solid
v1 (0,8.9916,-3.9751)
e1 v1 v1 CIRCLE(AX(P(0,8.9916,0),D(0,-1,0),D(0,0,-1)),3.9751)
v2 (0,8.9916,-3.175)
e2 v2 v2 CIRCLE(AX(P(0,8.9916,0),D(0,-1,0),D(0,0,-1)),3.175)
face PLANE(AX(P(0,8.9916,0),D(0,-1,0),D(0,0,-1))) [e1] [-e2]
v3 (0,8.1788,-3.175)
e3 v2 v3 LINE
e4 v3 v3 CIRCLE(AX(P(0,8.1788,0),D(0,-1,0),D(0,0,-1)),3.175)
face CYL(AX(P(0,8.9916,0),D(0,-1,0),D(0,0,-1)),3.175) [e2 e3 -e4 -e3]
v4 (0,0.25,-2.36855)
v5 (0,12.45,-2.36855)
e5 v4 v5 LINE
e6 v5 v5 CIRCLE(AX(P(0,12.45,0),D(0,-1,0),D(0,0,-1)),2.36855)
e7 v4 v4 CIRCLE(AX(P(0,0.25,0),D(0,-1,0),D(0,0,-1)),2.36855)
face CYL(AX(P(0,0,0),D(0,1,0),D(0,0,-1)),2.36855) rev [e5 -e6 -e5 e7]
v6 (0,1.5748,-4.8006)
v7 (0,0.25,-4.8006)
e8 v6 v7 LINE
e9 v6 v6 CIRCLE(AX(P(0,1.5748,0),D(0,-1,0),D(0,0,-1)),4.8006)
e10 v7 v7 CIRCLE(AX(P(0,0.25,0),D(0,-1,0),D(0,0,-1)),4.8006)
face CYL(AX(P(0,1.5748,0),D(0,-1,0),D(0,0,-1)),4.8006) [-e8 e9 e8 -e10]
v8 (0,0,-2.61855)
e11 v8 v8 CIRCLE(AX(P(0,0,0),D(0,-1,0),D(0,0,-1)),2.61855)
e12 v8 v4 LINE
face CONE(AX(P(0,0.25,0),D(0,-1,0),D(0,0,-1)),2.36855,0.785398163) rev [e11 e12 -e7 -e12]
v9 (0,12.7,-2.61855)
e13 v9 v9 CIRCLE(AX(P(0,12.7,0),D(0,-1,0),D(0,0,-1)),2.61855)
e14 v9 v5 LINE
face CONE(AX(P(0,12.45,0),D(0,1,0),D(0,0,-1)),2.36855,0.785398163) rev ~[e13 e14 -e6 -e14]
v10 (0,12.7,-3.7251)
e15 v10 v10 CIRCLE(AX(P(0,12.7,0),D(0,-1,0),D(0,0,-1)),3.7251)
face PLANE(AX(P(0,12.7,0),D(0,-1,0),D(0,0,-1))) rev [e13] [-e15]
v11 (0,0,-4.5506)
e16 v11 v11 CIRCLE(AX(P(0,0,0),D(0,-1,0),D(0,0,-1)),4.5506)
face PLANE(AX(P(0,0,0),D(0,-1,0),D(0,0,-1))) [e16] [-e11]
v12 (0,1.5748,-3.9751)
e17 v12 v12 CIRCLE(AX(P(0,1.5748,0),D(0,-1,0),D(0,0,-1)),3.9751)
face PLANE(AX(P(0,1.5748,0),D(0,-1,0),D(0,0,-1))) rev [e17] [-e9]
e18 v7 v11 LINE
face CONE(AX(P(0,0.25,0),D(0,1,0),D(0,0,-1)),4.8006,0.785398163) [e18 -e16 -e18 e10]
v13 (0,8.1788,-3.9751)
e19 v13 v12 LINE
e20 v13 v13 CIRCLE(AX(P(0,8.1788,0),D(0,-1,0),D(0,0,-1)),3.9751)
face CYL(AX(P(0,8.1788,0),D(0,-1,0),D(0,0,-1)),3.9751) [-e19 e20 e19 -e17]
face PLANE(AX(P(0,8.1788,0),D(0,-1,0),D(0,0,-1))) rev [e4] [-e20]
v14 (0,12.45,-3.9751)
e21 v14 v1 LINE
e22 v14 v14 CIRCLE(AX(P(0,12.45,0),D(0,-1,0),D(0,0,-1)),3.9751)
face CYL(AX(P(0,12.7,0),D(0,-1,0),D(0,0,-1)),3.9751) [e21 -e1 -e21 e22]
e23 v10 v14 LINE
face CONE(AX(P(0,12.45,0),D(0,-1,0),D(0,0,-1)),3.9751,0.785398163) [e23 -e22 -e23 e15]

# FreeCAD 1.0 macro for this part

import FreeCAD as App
import Part
import Sketcher
from FreeCAD import Vector
Q = App.Units.Quantity


def edges_at(feature, points):
    """Names of the edges that pass closest to the given points."""
    edges = feature.Shape.Edges
    near = lambda p: min(range(len(edges)), key=lambda i: edges[i].distToShape(Part.Vertex(*p))[0])
    return sorted({f"Edge{near(p) + 1}" for p in points})


def add_polygon(sketch, points):
    """Adds a closed chain of lines whose ends are joined by coincident constraints."""
    first, n = sketch.GeometryCount, len(points)
    for a, b in zip(points, points[1:] + points[:1]):
        sketch.addGeometry(Part.LineSegment(App.Vector(*a, 0), App.Vector(*b, 0)), False)
    for i in range(n):
        sketch.addConstraint(Sketcher.Constraint("Coincident", first + i, 2, first + (i + 1) % n, 1))

doc = App.newDocument("Part")
params = doc.addObject("Spreadsheet::Sheet", "Params")
for row, (alias, value) in enumerate([
    ("sketch1_width", "0.5 in"),
    ("sketch1_width2", "0.26 in"),
    ("sketch1_width3", "0.062 in"),
    ("sketch1_width4", "0.032 in"),
    ("revolution_angle", "360 deg"),
    ("chamfer_size", "0.25 mm"),
], start=1):
    params.set(f"A{row}", alias)
    params.set(f"B{row}", "=" + value)
    params.setAlias(f"B{row}", alias)

body = doc.addObject("PartDesign::Body", "Body")

# Sketch on YZ plane
sketch1 = doc.addObject("Sketcher::SketchObject", "Sketch")
body.addObject(sketch1)
sketch1.AttachmentSupport = (doc.YZ_Plane, [""])
sketch1.MapMode = "FlatFace"
add_polygon(sketch1, [(12.7, -3.9751), (12.7, -2.36855), (0, -2.36855), (0, -4.8006), (1.5748, -4.8006), (1.5748, -3.9751), (8.1788, -3.9751), (8.1788, -3.175), (8.9916, -3.175), (8.9916, -3.9751)])  # lines 0-9
sketch1.addConstraint(Sketcher.Constraint("Vertical", 0))
sketch1.addConstraint(Sketcher.Constraint("Horizontal", 1))
sketch1.addConstraint(Sketcher.Constraint("Vertical", 2))
sketch1.addConstraint(Sketcher.Constraint("Horizontal", 3))
sketch1.addConstraint(Sketcher.Constraint("Vertical", 4))
sketch1.addConstraint(Sketcher.Constraint("Horizontal", 5))
sketch1.addConstraint(Sketcher.Constraint("Vertical", 6))
sketch1.addConstraint(Sketcher.Constraint("Horizontal", 7))
sketch1.addConstraint(Sketcher.Constraint("Vertical", 8))
sketch1.addConstraint(Sketcher.Constraint("Horizontal", 9))
sketch1.addConstraint(Sketcher.Constraint("PointOnObject", 1, 2, -2))
sketch1.addConstraint(Sketcher.Constraint("Horizontal", 5, 2, 8, 2))
sketch1.addConstraint(Sketcher.Constraint("DistanceX", 1, 2, 1, 1, Q("0.5 in")))
sketch1.addConstraint(Sketcher.Constraint("DistanceX", 5, 1, 5, 2, Q("0.26 in")))
sketch1.addConstraint(Sketcher.Constraint("DistanceX", 3, 1, 3, 2, Q("0.062 in")))
sketch1.addConstraint(Sketcher.Constraint("DistanceX", 7, 1, 7, 2, Q("0.032 in")))
sketch1.addConstraint(Sketcher.Constraint("DistanceY", 4, 1, 4, 2, Q("0.0325 in")))
sketch1.addConstraint(Sketcher.Constraint("DistanceY", 6, 1, 6, 2, Q("0.0315 in")))
sketch1.addConstraint(Sketcher.Constraint("DistanceY", 2, 2, -1, 1, Q("0.189 in")))
sketch1.addConstraint(Sketcher.Constraint("DistanceY", 0, 1, 0, 2, 1.60655))
sketch1.setExpression("Constraints[22]", "Params.sketch1_width")
sketch1.setExpression("Constraints[23]", "Params.sketch1_width2")
sketch1.setExpression("Constraints[24]", "Params.sketch1_width3")
sketch1.setExpression("Constraints[25]", "Params.sketch1_width4")
revolution = doc.addObject("PartDesign::Revolution", "Revolution")
body.addObject(revolution)
revolution.Profile = sketch1
revolution.ReferenceAxis = (sketch1, ["H_Axis"])
revolution.setExpression("Angle", "Params.revolution_angle")
doc.recompute()

chamfer = doc.addObject("PartDesign::Chamfer", "Chamfer")
body.addObject(chamfer)
chamfer.Base = (revolution, edges_at(revolution, [
    (0, 0, 4.801),
    (0, 0, 2.369),
    (0, 12.7, 2.369),
    (0, 12.7, 3.975),
]))
chamfer.setExpression("Size", "Params.chamfer_size")

doc.recompute()
